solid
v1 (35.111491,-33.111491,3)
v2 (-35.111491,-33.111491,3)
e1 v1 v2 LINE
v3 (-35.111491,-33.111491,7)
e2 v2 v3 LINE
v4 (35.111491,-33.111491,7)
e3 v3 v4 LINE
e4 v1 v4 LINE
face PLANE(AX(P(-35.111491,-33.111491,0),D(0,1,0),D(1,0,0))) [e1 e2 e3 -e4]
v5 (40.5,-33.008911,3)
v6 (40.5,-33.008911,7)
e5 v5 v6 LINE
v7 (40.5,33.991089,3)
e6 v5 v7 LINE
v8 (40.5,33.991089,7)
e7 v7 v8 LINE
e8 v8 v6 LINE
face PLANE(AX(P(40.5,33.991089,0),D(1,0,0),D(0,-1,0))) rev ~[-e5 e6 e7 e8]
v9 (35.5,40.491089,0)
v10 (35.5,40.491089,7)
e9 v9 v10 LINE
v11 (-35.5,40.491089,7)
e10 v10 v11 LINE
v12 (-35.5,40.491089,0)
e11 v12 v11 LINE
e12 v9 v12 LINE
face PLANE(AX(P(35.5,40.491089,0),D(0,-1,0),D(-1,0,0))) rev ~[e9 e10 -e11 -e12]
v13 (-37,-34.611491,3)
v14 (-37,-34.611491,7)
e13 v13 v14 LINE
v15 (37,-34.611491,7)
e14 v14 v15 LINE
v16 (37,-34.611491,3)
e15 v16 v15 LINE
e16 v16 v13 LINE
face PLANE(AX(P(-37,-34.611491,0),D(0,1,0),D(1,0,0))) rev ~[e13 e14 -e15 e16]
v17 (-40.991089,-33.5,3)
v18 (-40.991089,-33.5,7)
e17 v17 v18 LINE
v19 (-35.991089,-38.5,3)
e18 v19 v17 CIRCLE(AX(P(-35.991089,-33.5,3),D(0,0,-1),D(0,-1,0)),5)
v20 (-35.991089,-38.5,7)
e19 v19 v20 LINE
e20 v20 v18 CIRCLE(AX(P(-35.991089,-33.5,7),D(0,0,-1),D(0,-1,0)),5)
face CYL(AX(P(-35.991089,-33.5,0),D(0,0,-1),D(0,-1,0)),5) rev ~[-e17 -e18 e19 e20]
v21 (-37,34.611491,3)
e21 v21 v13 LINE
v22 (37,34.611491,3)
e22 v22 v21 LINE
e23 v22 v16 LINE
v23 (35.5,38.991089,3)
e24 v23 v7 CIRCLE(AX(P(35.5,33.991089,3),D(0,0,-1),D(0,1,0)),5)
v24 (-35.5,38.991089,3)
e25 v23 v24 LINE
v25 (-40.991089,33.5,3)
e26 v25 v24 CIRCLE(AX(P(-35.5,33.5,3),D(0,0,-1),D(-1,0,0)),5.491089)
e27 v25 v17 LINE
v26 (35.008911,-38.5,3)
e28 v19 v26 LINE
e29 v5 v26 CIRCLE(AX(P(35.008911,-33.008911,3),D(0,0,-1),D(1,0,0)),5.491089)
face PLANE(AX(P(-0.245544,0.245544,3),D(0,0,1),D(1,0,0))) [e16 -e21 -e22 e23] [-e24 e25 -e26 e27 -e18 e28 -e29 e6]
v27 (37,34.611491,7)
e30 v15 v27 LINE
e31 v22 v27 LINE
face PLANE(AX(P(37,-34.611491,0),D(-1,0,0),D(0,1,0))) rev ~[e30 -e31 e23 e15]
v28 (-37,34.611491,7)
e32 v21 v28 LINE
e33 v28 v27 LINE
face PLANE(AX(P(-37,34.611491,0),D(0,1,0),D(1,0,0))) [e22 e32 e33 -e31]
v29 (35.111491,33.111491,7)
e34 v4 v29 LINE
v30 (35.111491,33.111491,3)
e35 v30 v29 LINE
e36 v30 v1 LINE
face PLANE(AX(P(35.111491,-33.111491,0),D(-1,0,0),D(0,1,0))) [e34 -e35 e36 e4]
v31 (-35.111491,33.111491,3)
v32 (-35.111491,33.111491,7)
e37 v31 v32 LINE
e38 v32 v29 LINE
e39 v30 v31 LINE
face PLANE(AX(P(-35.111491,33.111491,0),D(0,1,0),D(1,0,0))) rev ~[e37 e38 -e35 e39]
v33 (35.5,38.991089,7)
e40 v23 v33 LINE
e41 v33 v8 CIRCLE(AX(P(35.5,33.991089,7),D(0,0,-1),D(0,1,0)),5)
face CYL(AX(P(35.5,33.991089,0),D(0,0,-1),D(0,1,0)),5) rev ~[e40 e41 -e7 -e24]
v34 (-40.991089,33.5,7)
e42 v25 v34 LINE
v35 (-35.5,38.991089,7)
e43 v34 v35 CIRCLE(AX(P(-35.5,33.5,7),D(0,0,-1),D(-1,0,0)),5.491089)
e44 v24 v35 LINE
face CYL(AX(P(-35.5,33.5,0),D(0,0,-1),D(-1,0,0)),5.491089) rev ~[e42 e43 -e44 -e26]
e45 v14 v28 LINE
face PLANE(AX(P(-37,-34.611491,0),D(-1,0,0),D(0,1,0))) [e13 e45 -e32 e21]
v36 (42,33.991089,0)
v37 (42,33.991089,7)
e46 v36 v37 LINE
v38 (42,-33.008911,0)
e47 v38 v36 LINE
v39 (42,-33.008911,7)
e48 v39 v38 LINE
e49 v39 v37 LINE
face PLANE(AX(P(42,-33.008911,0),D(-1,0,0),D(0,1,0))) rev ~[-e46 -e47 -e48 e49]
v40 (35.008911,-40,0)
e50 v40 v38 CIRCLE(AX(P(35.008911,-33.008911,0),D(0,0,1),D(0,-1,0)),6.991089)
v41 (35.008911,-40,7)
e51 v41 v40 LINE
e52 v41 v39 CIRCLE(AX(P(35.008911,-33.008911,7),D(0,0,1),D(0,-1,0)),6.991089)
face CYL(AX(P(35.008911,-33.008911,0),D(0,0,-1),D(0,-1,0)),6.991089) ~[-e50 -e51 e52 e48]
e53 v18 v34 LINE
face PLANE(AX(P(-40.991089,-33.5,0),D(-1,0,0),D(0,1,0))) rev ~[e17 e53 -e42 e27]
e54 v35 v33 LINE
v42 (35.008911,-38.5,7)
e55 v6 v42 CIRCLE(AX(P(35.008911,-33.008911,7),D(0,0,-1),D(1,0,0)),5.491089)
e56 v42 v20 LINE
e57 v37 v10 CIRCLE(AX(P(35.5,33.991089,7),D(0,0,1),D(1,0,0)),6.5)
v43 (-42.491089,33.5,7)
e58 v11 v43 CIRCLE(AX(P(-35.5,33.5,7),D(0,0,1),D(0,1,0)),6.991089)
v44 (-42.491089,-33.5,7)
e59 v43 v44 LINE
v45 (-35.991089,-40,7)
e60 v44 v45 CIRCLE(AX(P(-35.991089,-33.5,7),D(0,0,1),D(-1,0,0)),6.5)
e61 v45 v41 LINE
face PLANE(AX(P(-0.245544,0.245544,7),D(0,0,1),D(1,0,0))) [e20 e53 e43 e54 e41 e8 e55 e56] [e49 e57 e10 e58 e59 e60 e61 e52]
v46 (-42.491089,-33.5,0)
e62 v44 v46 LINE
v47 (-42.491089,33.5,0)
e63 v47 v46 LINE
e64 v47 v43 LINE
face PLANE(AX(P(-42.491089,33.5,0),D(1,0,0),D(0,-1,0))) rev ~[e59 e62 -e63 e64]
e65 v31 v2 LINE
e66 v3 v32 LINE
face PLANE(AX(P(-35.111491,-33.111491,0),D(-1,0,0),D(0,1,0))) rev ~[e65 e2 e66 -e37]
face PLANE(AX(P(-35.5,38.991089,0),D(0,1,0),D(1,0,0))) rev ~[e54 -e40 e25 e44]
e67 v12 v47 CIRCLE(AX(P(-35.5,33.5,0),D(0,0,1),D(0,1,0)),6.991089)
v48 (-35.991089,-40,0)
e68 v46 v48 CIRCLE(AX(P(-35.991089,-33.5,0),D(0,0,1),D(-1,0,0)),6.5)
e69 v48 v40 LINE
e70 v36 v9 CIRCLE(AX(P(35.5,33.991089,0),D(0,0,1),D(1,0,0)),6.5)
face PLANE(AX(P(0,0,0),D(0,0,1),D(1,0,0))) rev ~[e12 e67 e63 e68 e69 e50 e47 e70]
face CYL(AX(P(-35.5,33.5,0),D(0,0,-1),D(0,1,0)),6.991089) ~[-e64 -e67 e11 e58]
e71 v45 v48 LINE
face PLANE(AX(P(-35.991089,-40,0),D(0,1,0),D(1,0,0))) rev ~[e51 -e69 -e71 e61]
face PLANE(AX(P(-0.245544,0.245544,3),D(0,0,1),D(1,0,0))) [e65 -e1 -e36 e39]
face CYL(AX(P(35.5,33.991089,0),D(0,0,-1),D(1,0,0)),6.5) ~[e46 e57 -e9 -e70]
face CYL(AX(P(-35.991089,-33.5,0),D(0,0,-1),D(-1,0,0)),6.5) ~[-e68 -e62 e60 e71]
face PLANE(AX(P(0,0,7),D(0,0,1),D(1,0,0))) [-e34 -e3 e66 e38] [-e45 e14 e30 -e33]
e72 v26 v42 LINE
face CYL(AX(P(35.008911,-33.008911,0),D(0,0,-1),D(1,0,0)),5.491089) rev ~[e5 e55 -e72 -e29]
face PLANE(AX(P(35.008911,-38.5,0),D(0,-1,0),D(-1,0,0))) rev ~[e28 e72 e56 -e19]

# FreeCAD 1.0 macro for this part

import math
import FreeCAD as App
import Part
import Sketcher
from FreeCAD import Vector

doc = App.newDocument("Part")
params = doc.addObject("Spreadsheet::Sheet", "Params")
for row, (alias, value) in enumerate([
    ("sketch1_radius", "6.5 mm"),
    ("sketch1_width", "71 mm"),
    ("sketch1_height", "67 mm"),
    ("pad1_length", "3 mm"),
    ("sketch2_radius", "5 mm"),
    ("sketch2_radius2", "6.5 mm"),
    ("sketch2_width", "71 mm"),
    ("sketch2_height", "67 mm"),
    ("pad2_length", "7 mm"),
    ("sketch3_width", "74 mm"),
    ("pad3_length", "7 mm"),
], start=1):
    params.set(f"A{row}", alias)
    params.set(f"B{row}", "=" + value)
    params.setAlias(f"B{row}", alias)

body = doc.addObject("PartDesign::Body", "Body")

# Sketch on XY plane
sketch1 = body.newObject("Sketcher::SketchObject", "Sketch")
sketch1.AttachmentSupport = (doc.getObject("XY_Plane"), [""])
sketch1.MapMode = "FlatFace"
sketch1.addGeometry([
    Part.LineSegment(Vector(42, -33, 0), Vector(42, 34, 0)),  # 0
    Part.ArcOfCircle(Part.Circle(Vector(36, 34, 0), Vector(0, 0, 1), 6), math.radians(0), math.radians(90)),  # 1
    Part.LineSegment(Vector(36, 40, 0), Vector(-36, 40, 0)),  # 2
    Part.ArcOfCircle(Part.Circle(Vector(-36, 34, 0), Vector(0, 0, 1), 7), math.radians(90), math.radians(180)),  # 3
    Part.LineSegment(Vector(-42, 34, 0), Vector(-42, -34, 0)),  # 4
    Part.ArcOfCircle(Part.Circle(Vector(-36, -34, 0), Vector(0, 0, 1), 6), math.radians(180), math.radians(270)),  # 5
    Part.LineSegment(Vector(-36, -40, 0), Vector(35, -40, 0)),  # 6
    Part.ArcOfCircle(Part.Circle(Vector(35, -33, 0), Vector(0, 0, 1), 7), math.radians(-90), math.radians(0)),  # 7
], False)
sketch1.addConstraint([
    Sketcher.Constraint("Tangent", 0, 2, 1, 1),
    Sketcher.Constraint("Tangent", 1, 2, 2, 1),
    Sketcher.Constraint("Tangent", 2, 2, 3, 1),
    Sketcher.Constraint("Tangent", 3, 2, 4, 1),
    Sketcher.Constraint("Tangent", 4, 2, 5, 1),
    Sketcher.Constraint("Tangent", 5, 2, 6, 1),
    Sketcher.Constraint("Tangent", 6, 2, 7, 1),
    Sketcher.Constraint("Tangent", 7, 2, 0, 1),
    Sketcher.Constraint("Vertical", 0),
    Sketcher.Constraint("Horizontal", 2),
    Sketcher.Constraint("Vertical", 4),
    Sketcher.Constraint("Horizontal", 6),
    Sketcher.Constraint("Equal", 1, 5),
    Sketcher.Constraint("Equal", 3, 7),
    Sketcher.Constraint("Radius", 1, 6.5),
    Sketcher.Constraint("DistanceX", 2, 2, 2, 1, 71.0),
    Sketcher.Constraint("DistanceY", 0, 1, 0, 2, 67.0),
    Sketcher.Constraint("DistanceX", -1, 1, 0, 2, 42.0),
    Sketcher.Constraint("DistanceY", 5, 2, -1, 1, 40.0),
    Sketcher.Constraint("Radius", 3, 6.991089),
])
sketch1.setExpression("Constraints[14]", "Params.sketch1_radius")
sketch1.setExpression("Constraints[15]", "Params.sketch1_width")
sketch1.setExpression("Constraints[16]", "Params.sketch1_height")
pad1 = body.newObject("PartDesign::Pad", "Pad")
pad1.Profile = sketch1
pad1.setExpression("Length", "Params.pad1_length")

# Sketch on XY plane
sketch2 = body.newObject("Sketcher::SketchObject", "Sketch001")
sketch2.AttachmentSupport = (doc.getObject("XY_Plane"), [""])
sketch2.MapMode = "FlatFace"
sketch2.addGeometry([
    Part.LineSegment(Vector(42, -33, 0), Vector(42, 34, 0)),  # 0
    Part.ArcOfCircle(Part.Circle(Vector(36, 34, 0), Vector(0, 0, 1), 6), math.radians(0), math.radians(90)),  # 1
    Part.LineSegment(Vector(36, 40, 0), Vector(-36, 40, 0)),  # 2
    Part.ArcOfCircle(Part.Circle(Vector(-36, 34, 0), Vector(0, 0, 1), 7), math.radians(90), math.radians(180)),  # 3
    Part.LineSegment(Vector(-42, 34, 0), Vector(-42, -34, 0)),  # 4
    Part.ArcOfCircle(Part.Circle(Vector(-36, -34, 0), Vector(0, 0, 1), 6), math.radians(180), math.radians(270)),  # 5
    Part.LineSegment(Vector(-36, -40, 0), Vector(35, -40, 0)),  # 6
    Part.ArcOfCircle(Part.Circle(Vector(35, -33, 0), Vector(0, 0, 1), 7), math.radians(-90), math.radians(0)),  # 7
    Part.LineSegment(Vector(-41, -34, 0), Vector(-41, 34, 0)),  # 8
    Part.ArcOfCircle(Part.Circle(Vector(-36, 34, 0), Vector(0, 0, 1), 5), math.radians(90), math.radians(180)),  # 9
    Part.LineSegment(Vector(-36, 39, 0), Vector(36, 39, 0)),  # 10
    Part.ArcOfCircle(Part.Circle(Vector(36, 34, 0), Vector(0, 0, 1), 5), math.radians(0), math.radians(90)),  # 11
    Part.LineSegment(Vector(40, 34, 0), Vector(40, -33, 0)),  # 12
    Part.ArcOfCircle(Part.Circle(Vector(35, -33, 0), Vector(0, 0, 1), 5), math.radians(-90), math.radians(0)),  # 13
    Part.LineSegment(Vector(35, -38, 0), Vector(-36, -38, 0)),  # 14
    Part.ArcOfCircle(Part.Circle(Vector(-36, -34, 0), Vector(0, 0, 1), 5), math.radians(180), math.radians(270)),  # 15
], False)
sketch2.addConstraint([
    Sketcher.Constraint("Tangent", 0, 2, 1, 1),
    Sketcher.Constraint("Tangent", 1, 2, 2, 1),
    Sketcher.Constraint("Tangent", 2, 2, 3, 1),
    Sketcher.Constraint("Tangent", 3, 2, 4, 1),
    Sketcher.Constraint("Tangent", 4, 2, 5, 1),
    Sketcher.Constraint("Tangent", 5, 2, 6, 1),
    Sketcher.Constraint("Tangent", 6, 2, 7, 1),
    Sketcher.Constraint("Tangent", 7, 2, 0, 1),
    Sketcher.Constraint("Tangent", 8, 2, 9, 2),
    Sketcher.Constraint("Tangent", 9, 1, 10, 1),
    Sketcher.Constraint("Tangent", 10, 2, 11, 2),
    Sketcher.Constraint("Tangent", 11, 1, 12, 1),
    Sketcher.Constraint("Tangent", 12, 2, 13, 2),
    Sketcher.Constraint("Tangent", 13, 1, 14, 1),
    Sketcher.Constraint("Tangent", 14, 2, 15, 2),
    Sketcher.Constraint("Tangent", 15, 1, 8, 1),
    Sketcher.Constraint("Vertical", 0),
    Sketcher.Constraint("Horizontal", 2),
    Sketcher.Constraint("Vertical", 4),
    Sketcher.Constraint("Horizontal", 6),
    Sketcher.Constraint("Vertical", 8),
    Sketcher.Constraint("Horizontal", 10),
    Sketcher.Constraint("Vertical", 12),
    Sketcher.Constraint("Horizontal", 14),
    Sketcher.Constraint("Coincident", 9, 3, 3, 3),
    Sketcher.Constraint("Coincident", 11, 3, 1, 3),
    Sketcher.Constraint("Coincident", 13, 3, 7, 3),
    Sketcher.Constraint("Equal", 1, 5),
    Sketcher.Constraint("Equal", 3, 7),
    Sketcher.Constraint("Equal", 11, 15),
    Sketcher.Constraint("Radius", 11, 5.0),
    Sketcher.Constraint("Radius", 1, 6.5),
    Sketcher.Constraint("DistanceX", 2, 2, 2, 1, 71.0),
    Sketcher.Constraint("DistanceY", 0, 1, 0, 2, 67.0),
    Sketcher.Constraint("DistanceX", -1, 1, 0, 2, 42.0),
    Sketcher.Constraint("DistanceY", 5, 2, -1, 1, 40.0),
    Sketcher.Constraint("Radius", 3, 6.991089),
])
sketch2.setExpression("Constraints[30]", "Params.sketch2_radius")
sketch2.setExpression("Constraints[31]", "Params.sketch2_radius2")
sketch2.setExpression("Constraints[32]", "Params.sketch2_width")
sketch2.setExpression("Constraints[33]", "Params.sketch2_height")
pad2 = body.newObject("PartDesign::Pad", "Pad001")
pad2.Profile = sketch2
pad2.setExpression("Length", "Params.pad2_length")

# Sketch on XY plane
sketch3 = body.newObject("Sketcher::SketchObject", "Sketch002")
sketch3.AttachmentSupport = (doc.getObject("XY_Plane"), [""])
sketch3.MapMode = "FlatFace"
sketch3.addGeometry([
    Part.LineSegment(Vector(-37, 35, 0), Vector(-37, -35, 0)),  # 0
    Part.LineSegment(Vector(-37, -35, 0), Vector(37, -35, 0)),  # 1
    Part.LineSegment(Vector(37, -35, 0), Vector(37, 35, 0)),  # 2
    Part.LineSegment(Vector(37, 35, 0), Vector(-37, 35, 0)),  # 3
    Part.LineSegment(Vector(35, -33, 0), Vector(-35, -33, 0)),  # 4
    Part.LineSegment(Vector(-35, -33, 0), Vector(-35, 33, 0)),  # 5
    Part.LineSegment(Vector(-35, 33, 0), Vector(35, 33, 0)),  # 6
    Part.LineSegment(Vector(35, 33, 0), Vector(35, -33, 0)),  # 7
], False)
sketch3.addConstraint([
    Sketcher.Constraint("Coincident", 0, 2, 1, 1),
    Sketcher.Constraint("Coincident", 1, 2, 2, 1),
    Sketcher.Constraint("Coincident", 2, 2, 3, 1),
    Sketcher.Constraint("Coincident", 3, 2, 0, 1),
    Sketcher.Constraint("Coincident", 4, 2, 5, 1),
    Sketcher.Constraint("Coincident", 5, 2, 6, 1),
    Sketcher.Constraint("Coincident", 6, 2, 7, 1),
    Sketcher.Constraint("Coincident", 7, 2, 4, 1),
    Sketcher.Constraint("Vertical", 0),
    Sketcher.Constraint("Horizontal", 1),
    Sketcher.Constraint("Vertical", 2),
    Sketcher.Constraint("Horizontal", 3),
    Sketcher.Constraint("Horizontal", 4),
    Sketcher.Constraint("Vertical", 5),
    Sketcher.Constraint("Horizontal", 6),
    Sketcher.Constraint("Vertical", 7),
    Sketcher.Constraint("Symmetric", 0, 2, 2, 2, -1, 1),
    Sketcher.Constraint("Symmetric", 4, 2, 6, 2, -1, 1),
    Sketcher.Constraint("DistanceX", 1, 1, 1, 2, 74.0),
    Sketcher.Constraint("DistanceY", 0, 2, 4, 2, 1.5),
    Sketcher.Constraint("DistanceX", 4, 2, 4, 1, 70.222981),
    Sketcher.Constraint("DistanceY", 0, 2, 0, 1, 69.222981),
])
sketch3.setExpression("Constraints[18]", "Params.sketch3_width")
pad3 = body.newObject("PartDesign::Pad", "Pad002")
pad3.Profile = sketch3
pad3.setExpression("Length", "Params.pad3_length")

doc.recompute()
